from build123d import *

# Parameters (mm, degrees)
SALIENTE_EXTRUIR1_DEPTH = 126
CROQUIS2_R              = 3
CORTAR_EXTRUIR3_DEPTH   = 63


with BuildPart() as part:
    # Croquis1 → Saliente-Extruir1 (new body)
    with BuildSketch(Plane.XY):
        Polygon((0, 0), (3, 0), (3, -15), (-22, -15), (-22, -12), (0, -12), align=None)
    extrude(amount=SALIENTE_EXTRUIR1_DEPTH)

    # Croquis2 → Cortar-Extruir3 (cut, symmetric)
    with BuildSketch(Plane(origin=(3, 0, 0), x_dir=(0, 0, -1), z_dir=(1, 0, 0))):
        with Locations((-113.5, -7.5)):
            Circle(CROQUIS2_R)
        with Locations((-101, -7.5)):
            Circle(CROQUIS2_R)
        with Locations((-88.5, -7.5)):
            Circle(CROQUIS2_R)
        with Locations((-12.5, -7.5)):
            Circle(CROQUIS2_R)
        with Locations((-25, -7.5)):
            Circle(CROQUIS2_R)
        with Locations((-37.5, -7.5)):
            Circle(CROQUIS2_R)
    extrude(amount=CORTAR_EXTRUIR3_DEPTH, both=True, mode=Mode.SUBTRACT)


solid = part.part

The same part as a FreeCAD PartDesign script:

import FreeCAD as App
import Part
import Sketcher
Q = App.Units.Quantity


def add_polygon(sketch, points):
    """Adds a closed chain of lines whose ends are joined by coincident constraints."""
    first, n = sketch.GeometryCount, len(points)
    for a, b in zip(points, points[1:] + points[:1]):
        sketch.addGeometry(Part.LineSegment(App.Vector(*a, 0), App.Vector(*b, 0)), False)
    for i in range(n):
        sketch.addConstraint(Sketcher.Constraint("Coincident", first + i, 2, first + (i + 1) % n, 1))

doc = App.newDocument("Part")
params = doc.addObject("Spreadsheet::Sheet", "Params")
for row, (alias, value) in enumerate([
    ("sketch1_width", "3 mm"),
    ("sketch1_width2", "22 mm"),
    ("sketch1_height", "12 mm"),
    ("pad1_length", "126 mm"),
    ("sketch2_diameter", "6 mm"),
    ("pocket1_length", "126 mm"),
], start=1):
    params.set(f"A{row}", alias)
    params.set(f"B{row}", "=" + value)
    params.setAlias(f"B{row}", alias)

body = doc.addObject("PartDesign::Body", "Body")

# Sketch on XY plane
sketch1 = body.newObject("Sketcher::SketchObject", "Sketch")
sketch1.AttachmentSupport = (doc.getObject("XY_Plane"), [""])
sketch1.MapMode = "FlatFace"
add_polygon(sketch1, [(3, 0), (0, 0), (0, -12), (-22, -12), (-22, -15), (3, -15)])  # lines 0-5
sketch1.addConstraint([
    Sketcher.Constraint("Horizontal", 0),
    Sketcher.Constraint("Vertical", 1),
    Sketcher.Constraint("Horizontal", 2),
    Sketcher.Constraint("Vertical", 3),
    Sketcher.Constraint("Horizontal", 4),
    Sketcher.Constraint("Vertical", 5),
    Sketcher.Constraint("Coincident", 0, 2, -1, 1),
    Sketcher.Constraint("Equal", 0, 3),
    Sketcher.Constraint("DistanceX", 0, 2, 0, 1, Q("3 mm")),
    Sketcher.Constraint("DistanceX", 2, 2, 2, 1, Q("22 mm")),
    Sketcher.Constraint("DistanceY", 1, 2, 1, 1, Q("12 mm")),
])
sketch1.setExpression("Constraints[14]", "Params.sketch1_width")
sketch1.setExpression("Constraints[15]", "Params.sketch1_width2")
sketch1.setExpression("Constraints[16]", "Params.sketch1_height")
pad1 = body.newObject("PartDesign::Pad", "Pad")
pad1.Profile = sketch1
pad1.setExpression("Length", "Params.pad1_length")

# Sketch on YZ plane
sketch2 = body.newObject("Sketcher::SketchObject", "Sketch001")
sketch2.AttachmentSupport = (doc.getObject("YZ_Plane"), [""])
sketch2.MapMode = "FlatFace"
sketch2.AttachmentOffset = App.Placement(App.Vector(0, 0, 3), App.Rotation())
sketch2.addGeometry([
    Part.Circle(App.Vector(-7.5, 113.5, 0), App.Vector(0, 0, 1), 3),  # 0
    Part.Circle(App.Vector(-7.5, 101, 0), App.Vector(0, 0, 1), 3),  # 1
    Part.Circle(App.Vector(-7.5, 88.5, 0), App.Vector(0, 0, 1), 3),  # 2
    Part.Circle(App.Vector(-7.5, 12.5, 0), App.Vector(0, 0, 1), 3),  # 3
    Part.Circle(App.Vector(-7.5, 25, 0), App.Vector(0, 0, 1), 3),  # 4
    Part.Circle(App.Vector(-7.5, 37.5, 0), App.Vector(0, 0, 1), 3),  # 5
], False)
sketch2.addConstraint([
    Sketcher.Constraint("Equal", 0, 1),
    Sketcher.Constraint("Equal", 1, 2),
    Sketcher.Constraint("Equal", 2, 3),
    Sketcher.Constraint("Equal", 3, 4),
    Sketcher.Constraint("Equal", 4, 5),
    Sketcher.Constraint("Vertical", 0, 3, 1, 3),
    Sketcher.Constraint("Vertical", 1, 3, 2, 3),
    Sketcher.Constraint("Vertical", 2, 3, 3, 3),
    Sketcher.Constraint("Vertical", 3, 3, 4, 3),
    Sketcher.Constraint("Vertical", 4, 3, 5, 3),
    Sketcher.Constraint("Diameter", 0, Q("6 mm")),
    Sketcher.Constraint("DistanceY", -1, 1, 1, 3, Q("101 mm")),
    Sketcher.Constraint("DistanceY", -1, 1, 4, 3, Q("25 mm")),
    Sketcher.Constraint("DistanceY", 2, 3, 0, 3, Q("25 mm")),
    Sketcher.Constraint("DistanceY", 3, 3, 2, 3, Q("76 mm")),
    Sketcher.Constraint("DistanceY", 3, 3, 5, 3, Q("25 mm")),
    Sketcher.Constraint("DistanceX", 0, 3, -1, 1, Q("7.5 mm")),
    Sketcher.Constraint("DistanceY", -1, 1, 0, 3, Q("113.5 mm")),
])
sketch2.setExpression("Constraints[10]", "Params.sketch2_diameter")
pocket1 = body.newObject("PartDesign::Pocket", "Pocket")
pocket1.Profile = sketch2
pocket1.setExpression("Length", "Params.pocket1_length")
pocket1.Midplane = True

doc.recompute()
